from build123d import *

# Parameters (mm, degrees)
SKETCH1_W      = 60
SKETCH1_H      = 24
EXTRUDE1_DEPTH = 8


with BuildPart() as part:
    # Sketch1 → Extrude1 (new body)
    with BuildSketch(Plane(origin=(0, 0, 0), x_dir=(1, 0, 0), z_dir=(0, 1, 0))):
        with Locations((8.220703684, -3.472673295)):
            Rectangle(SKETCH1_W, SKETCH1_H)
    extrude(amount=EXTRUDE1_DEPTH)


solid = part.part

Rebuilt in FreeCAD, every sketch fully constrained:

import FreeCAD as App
import Part
import Sketcher

V = App.Vector


def add_polygon(sketch, points):
    """Adds a closed chain of lines whose ends are joined by coincident constraints."""
    first, n = sketch.GeometryCount, len(points)
    for a, b in zip(points, points[1:] + points[:1]):
        sketch.addGeometry(Part.LineSegment(App.Vector(*a, 0), App.Vector(*b, 0)), False)
    for i in range(n):
        sketch.addConstraint(Sketcher.Constraint("Coincident", first + i, 2, first + (i + 1) % n, 1))

doc = App.newDocument("Part")
body = doc.addObject("PartDesign::Body", "Body")

# Sketch on XZ plane
sketch1 = doc.addObject("Sketcher::SketchObject", "Sketch")
body.addObject(sketch1)
sketch1.AttachmentSupport = (doc.XZ_Plane, [""])
sketch1.MapMode = "FlatFace"
add_polygon(sketch1, [(-21.779296, -8.527327), (-21.779296, 15.472673), (38.220704, 15.472673), (38.220704, -8.527327)])  # lines 0-3
sketch1.addConstraint([
    Sketcher.Constraint("Vertical", 0),
    Sketcher.Constraint("Horizontal", 1),
    Sketcher.Constraint("Vertical", 2),
    Sketcher.Constraint("Horizontal", 3),
    Sketcher.Constraint("DistanceX", 1, 1, 1, 2, 60.0),
    Sketcher.Constraint("DistanceY", 0, 1, 0, 2, 24.0),
    Sketcher.Constraint("DistanceX", 0, 2, -1, 1, 21.779296),
    Sketcher.Constraint("DistanceY", -1, 1, 0, 2, 15.472673),
])
pad1 = doc.addObject("PartDesign::Pad", "Pad")
body.addObject(pad1)
pad1.Profile = sketch1
pad1.Length = 8
pad1.Reversed = True

doc.recompute()
